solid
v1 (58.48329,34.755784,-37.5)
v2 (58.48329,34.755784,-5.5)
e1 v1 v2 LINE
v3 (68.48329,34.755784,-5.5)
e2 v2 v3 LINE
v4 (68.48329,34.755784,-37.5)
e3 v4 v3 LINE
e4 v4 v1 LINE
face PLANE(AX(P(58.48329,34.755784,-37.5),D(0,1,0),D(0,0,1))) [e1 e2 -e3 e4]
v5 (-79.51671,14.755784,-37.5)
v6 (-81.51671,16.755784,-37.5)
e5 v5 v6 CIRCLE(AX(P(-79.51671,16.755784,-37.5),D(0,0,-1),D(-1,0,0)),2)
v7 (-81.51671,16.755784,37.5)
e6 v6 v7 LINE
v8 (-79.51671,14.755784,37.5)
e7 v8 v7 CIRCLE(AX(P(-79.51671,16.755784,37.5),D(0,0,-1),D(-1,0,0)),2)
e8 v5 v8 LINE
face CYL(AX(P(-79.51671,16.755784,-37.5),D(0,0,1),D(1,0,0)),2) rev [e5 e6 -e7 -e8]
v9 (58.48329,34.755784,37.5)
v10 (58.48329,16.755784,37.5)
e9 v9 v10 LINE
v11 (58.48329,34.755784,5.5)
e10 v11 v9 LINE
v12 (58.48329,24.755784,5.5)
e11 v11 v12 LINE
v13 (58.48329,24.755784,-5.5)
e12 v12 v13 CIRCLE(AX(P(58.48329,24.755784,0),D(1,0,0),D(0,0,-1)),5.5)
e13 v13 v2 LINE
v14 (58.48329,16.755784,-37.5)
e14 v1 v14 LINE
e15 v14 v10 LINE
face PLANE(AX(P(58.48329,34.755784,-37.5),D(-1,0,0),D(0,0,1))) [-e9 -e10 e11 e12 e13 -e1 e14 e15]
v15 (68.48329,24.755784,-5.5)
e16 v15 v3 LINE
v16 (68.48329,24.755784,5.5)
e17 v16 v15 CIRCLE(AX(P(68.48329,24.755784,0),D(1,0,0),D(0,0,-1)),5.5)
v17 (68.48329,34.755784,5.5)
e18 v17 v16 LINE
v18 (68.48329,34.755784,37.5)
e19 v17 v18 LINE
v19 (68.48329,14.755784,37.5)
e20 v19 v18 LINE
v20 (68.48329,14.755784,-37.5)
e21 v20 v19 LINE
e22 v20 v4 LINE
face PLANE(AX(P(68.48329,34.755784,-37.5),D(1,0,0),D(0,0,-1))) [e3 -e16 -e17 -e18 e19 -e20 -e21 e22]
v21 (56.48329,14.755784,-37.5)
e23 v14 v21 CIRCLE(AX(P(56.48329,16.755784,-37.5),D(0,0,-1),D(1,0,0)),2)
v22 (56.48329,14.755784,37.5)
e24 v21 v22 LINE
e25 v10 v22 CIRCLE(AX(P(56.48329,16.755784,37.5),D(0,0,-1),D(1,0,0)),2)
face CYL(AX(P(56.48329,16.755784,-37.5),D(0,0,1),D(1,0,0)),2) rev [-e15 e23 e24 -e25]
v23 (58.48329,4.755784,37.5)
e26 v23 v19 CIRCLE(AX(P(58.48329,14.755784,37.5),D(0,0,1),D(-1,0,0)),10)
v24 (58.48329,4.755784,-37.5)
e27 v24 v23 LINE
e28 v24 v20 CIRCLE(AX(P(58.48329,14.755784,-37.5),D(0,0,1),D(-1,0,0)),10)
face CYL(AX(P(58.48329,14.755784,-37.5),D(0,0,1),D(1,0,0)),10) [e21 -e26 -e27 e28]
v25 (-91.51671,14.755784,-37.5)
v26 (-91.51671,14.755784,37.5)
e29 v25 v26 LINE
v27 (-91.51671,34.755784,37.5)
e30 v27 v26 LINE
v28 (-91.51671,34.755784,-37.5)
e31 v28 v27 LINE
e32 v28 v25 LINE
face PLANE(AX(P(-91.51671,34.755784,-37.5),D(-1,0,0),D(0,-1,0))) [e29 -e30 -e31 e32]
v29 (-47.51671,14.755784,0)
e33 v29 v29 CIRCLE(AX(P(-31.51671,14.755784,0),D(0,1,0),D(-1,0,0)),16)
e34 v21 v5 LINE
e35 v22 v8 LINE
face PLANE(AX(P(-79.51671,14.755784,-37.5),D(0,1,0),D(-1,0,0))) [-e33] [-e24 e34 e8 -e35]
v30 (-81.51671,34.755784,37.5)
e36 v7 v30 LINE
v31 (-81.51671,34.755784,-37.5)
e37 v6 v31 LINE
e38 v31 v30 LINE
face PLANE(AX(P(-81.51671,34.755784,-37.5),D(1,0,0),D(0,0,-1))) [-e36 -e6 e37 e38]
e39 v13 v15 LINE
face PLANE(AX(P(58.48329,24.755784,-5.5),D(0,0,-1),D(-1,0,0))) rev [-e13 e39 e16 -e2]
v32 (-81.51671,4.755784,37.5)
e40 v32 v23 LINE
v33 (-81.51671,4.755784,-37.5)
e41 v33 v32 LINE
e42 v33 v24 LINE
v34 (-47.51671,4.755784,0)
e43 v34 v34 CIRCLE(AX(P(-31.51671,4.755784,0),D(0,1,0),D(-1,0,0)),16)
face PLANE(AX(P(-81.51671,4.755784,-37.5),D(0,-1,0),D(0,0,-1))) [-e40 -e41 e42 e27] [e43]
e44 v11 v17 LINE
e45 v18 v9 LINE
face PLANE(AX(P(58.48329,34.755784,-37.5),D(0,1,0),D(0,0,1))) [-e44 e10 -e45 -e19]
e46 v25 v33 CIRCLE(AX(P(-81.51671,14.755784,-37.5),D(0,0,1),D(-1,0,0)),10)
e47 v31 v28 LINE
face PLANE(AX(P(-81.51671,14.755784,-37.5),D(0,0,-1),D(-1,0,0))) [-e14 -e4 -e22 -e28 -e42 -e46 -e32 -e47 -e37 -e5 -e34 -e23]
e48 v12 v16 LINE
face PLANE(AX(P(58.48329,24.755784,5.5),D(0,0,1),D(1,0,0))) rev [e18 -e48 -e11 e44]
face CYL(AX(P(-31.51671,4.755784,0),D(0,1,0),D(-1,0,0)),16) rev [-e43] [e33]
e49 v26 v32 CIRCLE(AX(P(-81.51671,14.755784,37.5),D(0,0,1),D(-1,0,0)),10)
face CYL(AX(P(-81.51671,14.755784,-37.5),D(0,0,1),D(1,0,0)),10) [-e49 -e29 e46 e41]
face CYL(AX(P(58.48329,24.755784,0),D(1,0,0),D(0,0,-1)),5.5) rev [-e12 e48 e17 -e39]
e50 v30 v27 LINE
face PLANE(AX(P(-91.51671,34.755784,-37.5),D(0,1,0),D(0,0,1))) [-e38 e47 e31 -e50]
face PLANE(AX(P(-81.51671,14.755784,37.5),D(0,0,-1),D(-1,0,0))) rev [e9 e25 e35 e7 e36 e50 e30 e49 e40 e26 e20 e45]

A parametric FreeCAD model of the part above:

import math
import FreeCAD as App
import Part
import Sketcher

V = App.Vector
Q = App.Units.Quantity

doc = App.newDocument("Part")
body = doc.addObject("PartDesign::Body", "Body")

# Sketch on XY plane
sketch1 = body.newObject("Sketcher::SketchObject", "Sketch")
sketch1.AttachmentSupport = (doc.getObject("XY_Plane"), [""])
sketch1.MapMode = "FlatFace"
sketch1.addGeometry(Part.LineSegment(V(-81.51671, 34.755784, 0), V(-91.51671, 34.755784, 0)), False)
sketch1.addGeometry(Part.LineSegment(V(-91.51671, 34.755784, 0), V(-91.51671, 14.755784, 0)), False)
sketch1.addGeometry(Part.ArcOfCircle(Part.Circle(V(-81.51671, 14.755784, 0), V(0, 0, 1), 10), math.radians(-180), math.radians(-90)), False)
sketch1.addGeometry(Part.LineSegment(V(-81.51671, 4.755784, 0), V(58.48329, 4.755784, 0)), False)
sketch1.addGeometry(Part.ArcOfCircle(Part.Circle(V(58.48329, 14.755784, 0), V(0, 0, 1), 10), math.radians(-90), math.radians(0)), False)
sketch1.addGeometry(Part.LineSegment(V(68.48329, 14.755784, 0), V(68.48329, 34.755784, 0)), False)
sketch1.addGeometry(Part.LineSegment(V(68.48329, 34.755784, 0), V(58.48329, 34.755784, 0)), False)
sketch1.addGeometry(Part.LineSegment(V(58.48329, 34.755784, 0), V(58.48329, 16.755784, 0)), False)
sketch1.addGeometry(Part.ArcOfCircle(Part.Circle(V(56.48329, 16.755784, 0), V(0, 0, 1), 2), math.radians(-90), math.radians(0)), False)
sketch1.addGeometry(Part.LineSegment(V(56.48329, 14.755784, 0), V(-79.51671, 14.755784, 0)), False)
sketch1.addGeometry(Part.ArcOfCircle(Part.Circle(V(-79.51671, 16.755784, 0), V(0, 0, 1), 2), math.radians(180), math.radians(270)), False)
sketch1.addGeometry(Part.LineSegment(V(-81.51671, 16.755784, 0), V(-81.51671, 34.755784, 0)), False)
sketch1.addConstraint(Sketcher.Constraint("Coincident", 0, 2, 1, 1))
sketch1.addConstraint(Sketcher.Constraint("Tangent", 1, 2, 2, 1))
sketch1.addConstraint(Sketcher.Constraint("Tangent", 2, 2, 3, 1))
sketch1.addConstraint(Sketcher.Constraint("Tangent", 3, 2, 4, 1))
sketch1.addConstraint(Sketcher.Constraint("Tangent", 4, 2, 5, 1))
sketch1.addConstraint(Sketcher.Constraint("Coincident", 5, 2, 6, 1))
sketch1.addConstraint(Sketcher.Constraint("Coincident", 6, 2, 7, 1))
sketch1.addConstraint(Sketcher.Constraint("Tangent", 7, 2, 8, 2))
sketch1.addConstraint(Sketcher.Constraint("Tangent", 8, 1, 9, 1))
sketch1.addConstraint(Sketcher.Constraint("Tangent", 9, 2, 10, 2))
sketch1.addConstraint(Sketcher.Constraint("Tangent", 10, 1, 11, 1))
sketch1.addConstraint(Sketcher.Constraint("Coincident", 11, 2, 0, 1))
sketch1.addConstraint(Sketcher.Constraint("Horizontal", 0))
sketch1.addConstraint(Sketcher.Constraint("Vertical", 1))
sketch1.addConstraint(Sketcher.Constraint("Horizontal", 3))
sketch1.addConstraint(Sketcher.Constraint("Vertical", 5))
sketch1.addConstraint(Sketcher.Constraint("Horizontal", 6))
sketch1.addConstraint(Sketcher.Constraint("Vertical", 7))
sketch1.addConstraint(Sketcher.Constraint("Horizontal", 9))
sketch1.addConstraint(Sketcher.Constraint("Vertical", 11))
sketch1.addConstraint(Sketcher.Constraint("Equal", 2, 4))
sketch1.addConstraint(Sketcher.Constraint("Equal", 8, 10))
sketch1.addConstraint(Sketcher.Constraint("Horizontal", 0, 2, 5, 2))
sketch1.addConstraint(Sketcher.Constraint("Horizontal", 4, 2, 8, 1))
sketch1.addConstraint(Sketcher.Constraint("Vertical", 3, 2, 6, 2))
sketch1.addConstraint(Sketcher.Constraint("Vertical", 2, 2, 10, 1))
sketch1.addConstraint(Sketcher.Constraint("Radius", 2, Q("10 mm")))
sketch1.addConstraint(Sketcher.Constraint("Radius", 8, Q("2 mm")))
sketch1.addConstraint(Sketcher.Constraint("DistanceX", 3, 1, 3, 2, Q("140 mm")))
sketch1.addConstraint(Sketcher.Constraint("DistanceY", 1, 2, 1, 1, Q("20 mm")))
sketch1.addConstraint(Sketcher.Constraint("DistanceX", 2, 3, -1, 1, Q("81.51671 mm")))
sketch1.addConstraint(Sketcher.Constraint("DistanceY", -1, 1, 2, 3, Q("14.755784 mm")))
pad1 = body.newObject("PartDesign::Pad", "Pad")
pad1.Profile = sketch1
pad1.Length = 75
pad1.Midplane = True

# Sketch on YZ plane
sketch2 = body.newObject("Sketcher::SketchObject", "Sketch001")
sketch2.AttachmentSupport = (doc.getObject("YZ_Plane"), [""])
sketch2.MapMode = "FlatFace"
sketch2.AttachmentOffset = App.Placement(V(0, 0, 68.48329), App.Rotation())
sketch2.addGeometry(Part.LineSegment(V(34.755784, 5.5, 0), V(24.755784, 5.5, 0)), False)
sketch2.addGeometry(Part.ArcOfCircle(Part.Circle(V(24.755784, 0, 0), V(0, 0, 1), 5.5), math.radians(90), math.radians(270)), False)
sketch2.addGeometry(Part.LineSegment(V(24.755784, -5.5, 0), V(34.755784, -5.5, 0)), False)
sketch2.addGeometry(Part.LineSegment(V(34.755784, -5.5, 0), V(34.755784, 5.5, 0)), False)
sketch2.addConstraint(Sketcher.Constraint("Tangent", 0, 2, 1, 1))
sketch2.addConstraint(Sketcher.Constraint("Tangent", 1, 2, 2, 1))
sketch2.addConstraint(Sketcher.Constraint("Coincident", 2, 2, 3, 1))
sketch2.addConstraint(Sketcher.Constraint("Coincident", 3, 2, 0, 1))
sketch2.addConstraint(Sketcher.Constraint("Horizontal", 0))
sketch2.addConstraint(Sketcher.Constraint("Horizontal", 2))
sketch2.addConstraint(Sketcher.Constraint("Vertical", 3))
sketch2.addConstraint(Sketcher.Constraint("PointOnObject", 1, 3, -1))
sketch2.addConstraint(Sketcher.Constraint("Radius", 1, Q("5.5 mm")))
sketch2.addConstraint(Sketcher.Constraint("DistanceX", 0, 2, 0, 1, Q("10 mm")))
sketch2.addConstraint(Sketcher.Constraint("DistanceX", -1, 1, 1, 3, Q("24.755784 mm")))
pocket1 = body.newObject("PartDesign::Pocket", "Pocket")
pocket1.Profile = sketch2
pocket1.Length = 10

# Sketch on XZ plane
sketch3 = body.newObject("Sketcher::SketchObject", "Sketch002")
sketch3.AttachmentSupport = (doc.getObject("XZ_Plane"), [""])
sketch3.MapMode = "FlatFace"
sketch3.AttachmentOffset = App.Placement(V(0, 0, -14.755784), App.Rotation())
sketch3.addGeometry(Part.Circle(V(-31.51671, 0, 0), V(0, 0, 1), 16), False)
sketch3.addConstraint(Sketcher.Constraint("PointOnObject", 0, 3, -1))
sketch3.addConstraint(Sketcher.Constraint("Diameter", 0, Q("32 mm")))
sketch3.addConstraint(Sketcher.Constraint("DistanceX", 0, 3, -1, 1, Q("31.51671 mm")))
pocket2 = body.newObject("PartDesign::Pocket", "Pocket001")
pocket2.Profile = sketch3
pocket2.Type = "ThroughAll"
pocket2.Reversed = True

doc.recompute()
